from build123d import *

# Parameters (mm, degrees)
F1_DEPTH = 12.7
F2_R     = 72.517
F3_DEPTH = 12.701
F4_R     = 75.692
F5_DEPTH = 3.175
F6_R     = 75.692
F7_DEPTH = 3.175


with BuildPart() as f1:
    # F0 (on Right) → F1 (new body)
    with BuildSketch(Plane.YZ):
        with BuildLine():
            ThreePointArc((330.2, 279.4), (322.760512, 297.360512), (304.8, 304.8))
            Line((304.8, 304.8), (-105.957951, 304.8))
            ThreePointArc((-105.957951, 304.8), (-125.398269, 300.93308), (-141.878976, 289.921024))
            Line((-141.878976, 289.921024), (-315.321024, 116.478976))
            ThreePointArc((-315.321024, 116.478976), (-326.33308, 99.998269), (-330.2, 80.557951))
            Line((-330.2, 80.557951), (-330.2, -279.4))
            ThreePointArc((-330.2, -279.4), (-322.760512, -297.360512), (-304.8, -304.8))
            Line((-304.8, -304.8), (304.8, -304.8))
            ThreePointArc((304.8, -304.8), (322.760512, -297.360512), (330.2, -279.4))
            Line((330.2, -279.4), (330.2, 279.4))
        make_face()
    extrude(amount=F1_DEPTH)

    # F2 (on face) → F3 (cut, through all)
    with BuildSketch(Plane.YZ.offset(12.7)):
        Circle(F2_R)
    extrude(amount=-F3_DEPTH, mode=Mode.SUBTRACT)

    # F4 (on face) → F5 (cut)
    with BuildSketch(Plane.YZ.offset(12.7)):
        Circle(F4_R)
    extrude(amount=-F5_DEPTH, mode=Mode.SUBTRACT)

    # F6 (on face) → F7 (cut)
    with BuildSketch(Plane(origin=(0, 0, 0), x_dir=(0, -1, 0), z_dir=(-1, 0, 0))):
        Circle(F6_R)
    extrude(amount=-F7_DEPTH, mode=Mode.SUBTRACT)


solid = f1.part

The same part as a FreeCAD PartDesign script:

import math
import FreeCAD as App
import Part
import Sketcher

V = App.Vector
Q = App.Units.Quantity

doc = App.newDocument("Part")
body = doc.addObject("PartDesign::Body", "Body")

# Sketch on YZ plane
sketch1 = body.newObject("Sketcher::SketchObject", "Sketch")
sketch1.AttachmentSupport = (doc.getObject("YZ_Plane"), [""])
sketch1.MapMode = "FlatFace"
sketch1.addGeometry([
    Part.ArcOfCircle(Part.Circle(V(305, 279, 0), V(0, 0, 1), 25), math.radians(0), math.radians(90)),  # 0
    Part.LineSegment(V(305, 305, 0), V(-106, 305, 0)),  # 1
    Part.ArcOfCircle(Part.Circle(V(-106, 254, 0), V(0, 0, 1), 51), math.radians(90), math.radians(135)),  # 2
    Part.LineSegment(V(-142, 290, 0), V(-315, 116, 0)),  # 3
    Part.ArcOfCircle(Part.Circle(V(-279, 81, 0), V(0, 0, 1), 51), math.radians(135), math.radians(180)),  # 4
    Part.LineSegment(V(-330, 81, 0), V(-330, -279, 0)),  # 5
    Part.ArcOfCircle(Part.Circle(V(-305, -279, 0), V(0, 0, 1), 25), math.radians(-180), math.radians(-90)),  # 6
    Part.LineSegment(V(-305, -305, 0), V(305, -305, 0)),  # 7
    Part.ArcOfCircle(Part.Circle(V(305, -279, 0), V(0, 0, 1), 25), math.radians(-90), math.radians(0)),  # 8
    Part.LineSegment(V(330, -279, 0), V(330, 279, 0)),  # 9
], False)
sketch1.addConstraint([
    Sketcher.Constraint("Tangent", 0, 2, 1, 1),
    Sketcher.Constraint("Tangent", 1, 2, 2, 1),
    Sketcher.Constraint("Tangent", 2, 2, 3, 1),
    Sketcher.Constraint("Tangent", 3, 2, 4, 1),
    Sketcher.Constraint("Tangent", 4, 2, 5, 1),
    Sketcher.Constraint("Tangent", 5, 2, 6, 1),
    Sketcher.Constraint("Tangent", 6, 2, 7, 1),
    Sketcher.Constraint("Tangent", 7, 2, 8, 1),
    Sketcher.Constraint("Tangent", 8, 2, 9, 1),
    Sketcher.Constraint("Tangent", 9, 2, 0, 1),
    Sketcher.Constraint("Horizontal", 1),
    Sketcher.Constraint("Vertical", 5),
    Sketcher.Constraint("Horizontal", 7),
    Sketcher.Constraint("Vertical", 9),
    Sketcher.Constraint("Equal", 2, 4),
    Sketcher.Constraint("Equal", 0, 6),
    Sketcher.Constraint("Equal", 6, 8),
    Sketcher.Constraint("Symmetric", 0, 3, 6, 3, -1, 1),
    Sketcher.Constraint("Radius", 0, Q("1 in")),
    Sketcher.Constraint("Radius", 2, Q("2.0000002 in")),
    Sketcher.Constraint("DistanceX", 7, 1, 7, 2, Q("24 in")),
    Sketcher.Constraint("DistanceY", 9, 1, 9, 2, Q("22 in")),
    Sketcher.Constraint("Angle", 3, Q("-135 deg")),
    Sketcher.Constraint("DistanceX", 1, 2, 1, 1, Q("410.757951 mm")),
])
pad1 = body.newObject("PartDesign::Pad", "Pad")
pad1.Profile = sketch1
pad1.Length = Q("0.5 in")

# Sketch on YZ plane
sketch2 = body.newObject("Sketcher::SketchObject", "Sketch001")
sketch2.AttachmentSupport = (doc.getObject("YZ_Plane"), [""])
sketch2.MapMode = "FlatFace"
sketch2.AttachmentOffset = App.Placement(V(0, 0, 0.5 * 25.4), App.Rotation())
sketch2.addGeometry(Part.Circle(V(0, 0, 0), V(0, 0, 1), 73), False)
sketch2.addConstraint([
    Sketcher.Constraint("Coincident", 0, 3, -1, 1),
    Sketcher.Constraint("Diameter", 0, Q("5.71 in")),
])
pocket1 = body.newObject("PartDesign::Pocket", "Pocket")
pocket1.Profile = sketch2
pocket1.Type = "ThroughAll"

# Sketch on YZ plane
sketch3 = body.newObject("Sketcher::SketchObject", "Sketch002")
sketch3.AttachmentSupport = (doc.getObject("YZ_Plane"), [""])
sketch3.MapMode = "FlatFace"
sketch3.AttachmentOffset = App.Placement(V(0, 0, 0.5 * 25.4), App.Rotation())
sketch3.addGeometry(Part.Circle(V(0, 0, 0), V(0, 0, 1), 76), False)
sketch3.addConstraint([
    Sketcher.Constraint("Coincident", 0, 3, -1, 1),
    Sketcher.Constraint("Diameter", 0, Q("5.96 in")),
])
pocket2 = body.newObject("PartDesign::Pocket", "Pocket001")
pocket2.Profile = sketch3
pocket2.Length = Q("0.125 in")

# Sketch on YZ plane
sketch4 = body.newObject("Sketcher::SketchObject", "Sketch003")
sketch4.AttachmentSupport = (doc.getObject("YZ_Plane"), [""])
sketch4.MapMode = "FlatFace"
sketch4.addGeometry(Part.Circle(V(0, 0, 0), V(0, 0, 1), 76), False)
sketch4.addConstraint([
    Sketcher.Constraint("Coincident", 0, 3, -1, 1),
    Sketcher.Constraint("Diameter", 0, Q("5.96 in")),
])
pocket3 = body.newObject("PartDesign::Pocket", "Pocket002")
pocket3.Profile = sketch4
pocket3.Length = Q("0.125 in")
pocket3.Reversed = True

doc.recompute()
